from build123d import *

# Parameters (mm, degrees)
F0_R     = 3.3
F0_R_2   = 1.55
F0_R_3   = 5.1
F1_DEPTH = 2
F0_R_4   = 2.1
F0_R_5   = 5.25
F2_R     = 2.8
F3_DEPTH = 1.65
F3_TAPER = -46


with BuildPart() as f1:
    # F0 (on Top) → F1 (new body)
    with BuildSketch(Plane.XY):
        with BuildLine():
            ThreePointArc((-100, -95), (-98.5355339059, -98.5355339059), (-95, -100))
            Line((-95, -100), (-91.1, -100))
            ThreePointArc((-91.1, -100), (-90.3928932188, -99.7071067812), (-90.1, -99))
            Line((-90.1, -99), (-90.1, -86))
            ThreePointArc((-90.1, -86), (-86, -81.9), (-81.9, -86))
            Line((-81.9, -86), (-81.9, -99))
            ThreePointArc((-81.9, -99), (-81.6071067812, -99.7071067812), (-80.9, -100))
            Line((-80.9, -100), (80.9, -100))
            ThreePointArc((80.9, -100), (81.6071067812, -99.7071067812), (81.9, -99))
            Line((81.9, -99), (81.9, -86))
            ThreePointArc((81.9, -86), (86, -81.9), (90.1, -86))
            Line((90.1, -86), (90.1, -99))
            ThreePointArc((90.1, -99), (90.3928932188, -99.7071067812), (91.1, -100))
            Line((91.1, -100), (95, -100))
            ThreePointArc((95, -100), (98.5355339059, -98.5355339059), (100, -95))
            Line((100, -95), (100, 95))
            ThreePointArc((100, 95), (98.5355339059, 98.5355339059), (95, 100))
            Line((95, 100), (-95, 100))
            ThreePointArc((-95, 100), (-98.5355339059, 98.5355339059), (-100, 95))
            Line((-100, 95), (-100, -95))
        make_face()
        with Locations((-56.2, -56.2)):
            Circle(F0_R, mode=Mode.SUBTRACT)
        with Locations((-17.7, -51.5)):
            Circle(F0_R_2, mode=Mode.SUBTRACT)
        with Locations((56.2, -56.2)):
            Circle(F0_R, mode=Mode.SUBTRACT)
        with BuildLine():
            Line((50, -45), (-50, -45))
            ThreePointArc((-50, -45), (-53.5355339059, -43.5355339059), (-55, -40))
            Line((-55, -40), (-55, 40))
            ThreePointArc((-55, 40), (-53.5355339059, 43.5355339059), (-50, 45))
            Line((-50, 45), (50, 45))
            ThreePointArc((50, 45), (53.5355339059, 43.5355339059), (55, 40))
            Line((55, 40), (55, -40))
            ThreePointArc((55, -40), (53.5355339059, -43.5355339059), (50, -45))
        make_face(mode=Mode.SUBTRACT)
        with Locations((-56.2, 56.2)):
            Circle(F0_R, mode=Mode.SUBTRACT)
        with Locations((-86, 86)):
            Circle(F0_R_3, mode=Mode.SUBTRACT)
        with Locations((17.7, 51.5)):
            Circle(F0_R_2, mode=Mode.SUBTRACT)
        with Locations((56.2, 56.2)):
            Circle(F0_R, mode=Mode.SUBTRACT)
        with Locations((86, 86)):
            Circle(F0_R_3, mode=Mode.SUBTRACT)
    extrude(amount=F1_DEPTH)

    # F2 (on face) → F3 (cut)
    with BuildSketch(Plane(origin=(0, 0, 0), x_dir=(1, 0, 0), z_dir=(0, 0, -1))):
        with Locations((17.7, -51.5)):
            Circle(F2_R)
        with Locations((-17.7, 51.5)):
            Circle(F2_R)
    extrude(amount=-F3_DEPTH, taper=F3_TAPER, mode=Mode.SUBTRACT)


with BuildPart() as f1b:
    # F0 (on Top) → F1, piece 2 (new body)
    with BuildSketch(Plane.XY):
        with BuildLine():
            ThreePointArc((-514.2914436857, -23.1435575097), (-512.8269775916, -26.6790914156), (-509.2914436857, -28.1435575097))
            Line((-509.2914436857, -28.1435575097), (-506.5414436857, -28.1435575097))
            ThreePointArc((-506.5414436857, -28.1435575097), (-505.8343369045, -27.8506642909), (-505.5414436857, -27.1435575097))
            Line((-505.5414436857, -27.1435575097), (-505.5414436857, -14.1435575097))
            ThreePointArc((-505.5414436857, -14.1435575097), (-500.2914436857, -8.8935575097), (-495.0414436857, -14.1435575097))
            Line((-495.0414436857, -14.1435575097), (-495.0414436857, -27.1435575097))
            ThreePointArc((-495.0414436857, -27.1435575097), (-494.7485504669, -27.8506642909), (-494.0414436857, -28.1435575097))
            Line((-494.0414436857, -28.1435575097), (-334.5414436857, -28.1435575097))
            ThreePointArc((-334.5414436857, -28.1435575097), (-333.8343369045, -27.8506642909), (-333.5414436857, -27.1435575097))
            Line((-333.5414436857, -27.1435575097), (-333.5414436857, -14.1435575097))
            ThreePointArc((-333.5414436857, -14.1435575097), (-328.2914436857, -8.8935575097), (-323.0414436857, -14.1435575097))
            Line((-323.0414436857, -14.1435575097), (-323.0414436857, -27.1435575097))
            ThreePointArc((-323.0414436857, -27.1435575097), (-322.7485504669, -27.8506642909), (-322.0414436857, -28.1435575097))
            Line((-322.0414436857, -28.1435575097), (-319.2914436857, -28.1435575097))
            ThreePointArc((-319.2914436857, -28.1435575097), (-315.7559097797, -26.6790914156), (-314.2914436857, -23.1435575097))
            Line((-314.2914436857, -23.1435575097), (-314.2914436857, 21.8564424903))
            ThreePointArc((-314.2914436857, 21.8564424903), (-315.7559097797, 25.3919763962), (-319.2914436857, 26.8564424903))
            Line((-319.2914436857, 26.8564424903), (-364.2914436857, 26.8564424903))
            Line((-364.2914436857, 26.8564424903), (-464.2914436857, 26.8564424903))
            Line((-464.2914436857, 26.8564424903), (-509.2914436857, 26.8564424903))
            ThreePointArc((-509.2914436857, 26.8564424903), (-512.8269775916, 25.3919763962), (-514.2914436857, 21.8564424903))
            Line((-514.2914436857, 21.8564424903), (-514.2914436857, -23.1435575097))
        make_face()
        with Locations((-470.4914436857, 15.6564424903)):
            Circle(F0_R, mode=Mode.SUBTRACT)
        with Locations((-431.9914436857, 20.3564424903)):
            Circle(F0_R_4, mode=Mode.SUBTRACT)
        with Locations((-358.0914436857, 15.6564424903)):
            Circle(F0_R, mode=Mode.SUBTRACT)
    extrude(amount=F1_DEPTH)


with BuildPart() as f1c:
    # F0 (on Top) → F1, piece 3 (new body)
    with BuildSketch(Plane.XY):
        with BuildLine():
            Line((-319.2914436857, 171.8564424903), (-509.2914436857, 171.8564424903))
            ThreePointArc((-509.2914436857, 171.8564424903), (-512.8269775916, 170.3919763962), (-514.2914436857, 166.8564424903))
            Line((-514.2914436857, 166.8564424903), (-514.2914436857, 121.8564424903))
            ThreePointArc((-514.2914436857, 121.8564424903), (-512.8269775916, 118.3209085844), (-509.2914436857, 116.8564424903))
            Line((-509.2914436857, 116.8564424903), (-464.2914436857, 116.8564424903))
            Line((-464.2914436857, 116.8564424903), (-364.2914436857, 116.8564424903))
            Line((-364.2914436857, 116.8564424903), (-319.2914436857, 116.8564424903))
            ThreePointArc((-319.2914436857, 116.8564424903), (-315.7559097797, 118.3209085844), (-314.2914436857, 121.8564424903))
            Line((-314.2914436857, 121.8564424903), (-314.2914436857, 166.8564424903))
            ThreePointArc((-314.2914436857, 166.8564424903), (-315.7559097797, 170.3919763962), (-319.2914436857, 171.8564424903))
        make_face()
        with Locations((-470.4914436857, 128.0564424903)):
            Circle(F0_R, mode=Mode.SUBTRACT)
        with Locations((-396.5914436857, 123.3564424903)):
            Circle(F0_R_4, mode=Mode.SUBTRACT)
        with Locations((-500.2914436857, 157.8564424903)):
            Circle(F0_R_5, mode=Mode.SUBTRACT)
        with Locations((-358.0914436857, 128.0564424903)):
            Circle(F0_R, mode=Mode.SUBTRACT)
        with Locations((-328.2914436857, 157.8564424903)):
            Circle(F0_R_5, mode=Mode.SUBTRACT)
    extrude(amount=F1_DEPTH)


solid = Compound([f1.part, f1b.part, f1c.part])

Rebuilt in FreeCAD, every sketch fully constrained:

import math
import FreeCAD as App
import Part
import Sketcher
Q = App.Units.Quantity

doc = App.newDocument("Part")
body = doc.addObject("PartDesign::Body", "Body")

# Sketch on XY plane
sketch1 = doc.addObject("Sketcher::SketchObject", "Sketch")
body.addObject(sketch1)
sketch1.AttachmentSupport = (doc.XY_Plane, [""])
sketch1.MapMode = "FlatFace"
sketch1.addGeometry(Part.ArcOfCircle(Part.Circle(App.Vector(-95, -95, 0), App.Vector(0, 0, 1), 5), math.radians(180), math.radians(270)), False)
sketch1.addGeometry(Part.LineSegment(App.Vector(-95, -100, 0), App.Vector(-91.1, -100, 0)), False)
sketch1.addGeometry(Part.ArcOfCircle(Part.Circle(App.Vector(-91.1, -99, 0), App.Vector(0, 0, 1), 1), math.radians(-90), math.radians(0)), False)
sketch1.addGeometry(Part.LineSegment(App.Vector(-90.1, -99, 0), App.Vector(-90.1, -86, 0)), False)
sketch1.addGeometry(Part.ArcOfCircle(Part.Circle(App.Vector(-86, -86, 0), App.Vector(0, 0, 1), 4.1), math.radians(0), math.radians(180)), False)
sketch1.addGeometry(Part.LineSegment(App.Vector(-81.9, -86, 0), App.Vector(-81.9, -99, 0)), False)
sketch1.addGeometry(Part.ArcOfCircle(Part.Circle(App.Vector(-80.9, -99, 0), App.Vector(0, 0, 1), 1), math.radians(180), math.radians(270)), False)
sketch1.addGeometry(Part.LineSegment(App.Vector(-80.9, -100, 0), App.Vector(80.9, -100, 0)), False)
sketch1.addGeometry(Part.ArcOfCircle(Part.Circle(App.Vector(80.9, -99, 0), App.Vector(0, 0, 1), 1), math.radians(-90), math.radians(0)), False)
sketch1.addGeometry(Part.LineSegment(App.Vector(81.9, -99, 0), App.Vector(81.9, -86, 0)), False)
sketch1.addGeometry(Part.ArcOfCircle(Part.Circle(App.Vector(86, -86, 0), App.Vector(0, 0, 1), 4.1), math.radians(0), math.radians(180)), False)
sketch1.addGeometry(Part.LineSegment(App.Vector(90.1, -86, 0), App.Vector(90.1, -99, 0)), False)
sketch1.addGeometry(Part.ArcOfCircle(Part.Circle(App.Vector(91.1, -99, 0), App.Vector(0, 0, 1), 1), math.radians(180), math.radians(270)), False)
sketch1.addGeometry(Part.LineSegment(App.Vector(91.1, -100, 0), App.Vector(95, -100, 0)), False)
sketch1.addGeometry(Part.ArcOfCircle(Part.Circle(App.Vector(95, -95, 0), App.Vector(0, 0, 1), 5), math.radians(-90), math.radians(0)), False)
sketch1.addGeometry(Part.LineSegment(App.Vector(100, -95, 0), App.Vector(100, 95, 0)), False)
sketch1.addGeometry(Part.ArcOfCircle(Part.Circle(App.Vector(95, 95, 0), App.Vector(0, 0, 1), 5), math.radians(0), math.radians(90)), False)
sketch1.addGeometry(Part.LineSegment(App.Vector(95, 100, 0), App.Vector(-95, 100, 0)), False)
sketch1.addGeometry(Part.ArcOfCircle(Part.Circle(App.Vector(-95, 95, 0), App.Vector(0, 0, 1), 5), math.radians(90), math.radians(180)), False)
sketch1.addGeometry(Part.LineSegment(App.Vector(-100, 95, 0), App.Vector(-100, -95, 0)), False)
sketch1.addGeometry(Part.Circle(App.Vector(-56.2, -56.2, 0), App.Vector(0, 0, 1), 3.3), False)
sketch1.addGeometry(Part.Circle(App.Vector(-17.7, -51.5, 0), App.Vector(0, 0, 1), 1.6), False)
sketch1.addGeometry(Part.Circle(App.Vector(56.2, -56.2, 0), App.Vector(0, 0, 1), 3.3), False)
sketch1.addGeometry(Part.ArcOfCircle(Part.Circle(App.Vector(50, -40, 0), App.Vector(0, 0, 1), 5), math.radians(-90), math.radians(0)), False)
sketch1.addGeometry(Part.LineSegment(App.Vector(50, -45, 0), App.Vector(-50, -45, 0)), False)
sketch1.addGeometry(Part.ArcOfCircle(Part.Circle(App.Vector(-50, -40, 0), App.Vector(0, 0, 1), 5), math.radians(180), math.radians(270)), False)
sketch1.addGeometry(Part.LineSegment(App.Vector(-55, -40, 0), App.Vector(-55, 40, 0)), False)
sketch1.addGeometry(Part.ArcOfCircle(Part.Circle(App.Vector(-50, 40, 0), App.Vector(0, 0, 1), 5), math.radians(90), math.radians(180)), False)
sketch1.addGeometry(Part.LineSegment(App.Vector(-50, 45, 0), App.Vector(50, 45, 0)), False)
sketch1.addGeometry(Part.ArcOfCircle(Part.Circle(App.Vector(50, 40, 0), App.Vector(0, 0, 1), 5), math.radians(0), math.radians(90)), False)
sketch1.addGeometry(Part.LineSegment(App.Vector(55, 40, 0), App.Vector(55, -40, 0)), False)
sketch1.addGeometry(Part.Circle(App.Vector(-56.2, 56.2, 0), App.Vector(0, 0, 1), 3.3), False)
sketch1.addGeometry(Part.Circle(App.Vector(-86, 86, 0), App.Vector(0, 0, 1), 5.1), False)
sketch1.addGeometry(Part.Circle(App.Vector(17.7, 51.5, 0), App.Vector(0, 0, 1), 1.6), False)
sketch1.addGeometry(Part.Circle(App.Vector(56.2, 56.2, 0), App.Vector(0, 0, 1), 3.3), False)
sketch1.addGeometry(Part.Circle(App.Vector(86, 86, 0), App.Vector(0, 0, 1), 5.1), False)
sketch1.addConstraint(Sketcher.Constraint("Tangent", 0, 2, 1, 1))
sketch1.addConstraint(Sketcher.Constraint("Tangent", 1, 2, 2, 1))
sketch1.addConstraint(Sketcher.Constraint("Tangent", 2, 2, 3, 1))
sketch1.addConstraint(Sketcher.Constraint("Tangent", 3, 2, 4, 2))
sketch1.addConstraint(Sketcher.Constraint("Tangent", 4, 1, 5, 1))
sketch1.addConstraint(Sketcher.Constraint("Tangent", 5, 2, 6, 1))
sketch1.addConstraint(Sketcher.Constraint("Tangent", 6, 2, 7, 1))
sketch1.addConstraint(Sketcher.Constraint("Tangent", 7, 2, 8, 1))
sketch1.addConstraint(Sketcher.Constraint("Tangent", 8, 2, 9, 1))
sketch1.addConstraint(Sketcher.Constraint("Tangent", 9, 2, 10, 2))
sketch1.addConstraint(Sketcher.Constraint("Tangent", 10, 1, 11, 1))
sketch1.addConstraint(Sketcher.Constraint("Tangent", 11, 2, 12, 1))
sketch1.addConstraint(Sketcher.Constraint("Tangent", 12, 2, 13, 1))
sketch1.addConstraint(Sketcher.Constraint("Tangent", 13, 2, 14, 1))
sketch1.addConstraint(Sketcher.Constraint("Tangent", 14, 2, 15, 1))
sketch1.addConstraint(Sketcher.Constraint("Tangent", 15, 2, 16, 1))
sketch1.addConstraint(Sketcher.Constraint("Tangent", 16, 2, 17, 1))
sketch1.addConstraint(Sketcher.Constraint("Tangent", 17, 2, 18, 1))
sketch1.addConstraint(Sketcher.Constraint("Tangent", 18, 2, 19, 1))
sketch1.addConstraint(Sketcher.Constraint("Tangent", 19, 2, 0, 1))
sketch1.addConstraint(Sketcher.Constraint("Tangent", 23, 1, 24, 1))
sketch1.addConstraint(Sketcher.Constraint("Tangent", 24, 2, 25, 2))
sketch1.addConstraint(Sketcher.Constraint("Tangent", 25, 1, 26, 1))
sketch1.addConstraint(Sketcher.Constraint("Tangent", 26, 2, 27, 2))
sketch1.addConstraint(Sketcher.Constraint("Tangent", 27, 1, 28, 1))
sketch1.addConstraint(Sketcher.Constraint("Tangent", 28, 2, 29, 2))
sketch1.addConstraint(Sketcher.Constraint("Tangent", 29, 1, 30, 1))
sketch1.addConstraint(Sketcher.Constraint("Tangent", 30, 2, 23, 2))
sketch1.addConstraint(Sketcher.Constraint("Horizontal", 1))
sketch1.addConstraint(Sketcher.Constraint("Vertical", 3))
sketch1.addConstraint(Sketcher.Constraint("Vertical", 5))
sketch1.addConstraint(Sketcher.Constraint("Horizontal", 7))
sketch1.addConstraint(Sketcher.Constraint("Vertical", 9))
sketch1.addConstraint(Sketcher.Constraint("Vertical", 11))
sketch1.addConstraint(Sketcher.Constraint("Horizontal", 13))
sketch1.addConstraint(Sketcher.Constraint("Vertical", 15))
sketch1.addConstraint(Sketcher.Constraint("Horizontal", 17))
sketch1.addConstraint(Sketcher.Constraint("Vertical", 19))
sketch1.addConstraint(Sketcher.Constraint("Horizontal", 24))
sketch1.addConstraint(Sketcher.Constraint("Vertical", 26))
sketch1.addConstraint(Sketcher.Constraint("Horizontal", 28))
sketch1.addConstraint(Sketcher.Constraint("Vertical", 30))
sketch1.addConstraint(Sketcher.Constraint("Equal", 2, 6))
sketch1.addConstraint(Sketcher.Constraint("Equal", 6, 8))
sketch1.addConstraint(Sketcher.Constraint("Equal", 4, 10))
sketch1.addConstraint(Sketcher.Constraint("Equal", 8, 12))
sketch1.addConstraint(Sketcher.Constraint("Equal", 0, 14))
sketch1.addConstraint(Sketcher.Constraint("Equal", 14, 16))
sketch1.addConstraint(Sketcher.Constraint("Equal", 16, 18))
sketch1.addConstraint(Sketcher.Constraint("Equal", 20, 22))
sketch1.addConstraint(Sketcher.Constraint("Equal", 18, 23))
sketch1.addConstraint(Sketcher.Constraint("Equal", 23, 25))
sketch1.addConstraint(Sketcher.Constraint("Equal", 25, 27))
sketch1.addConstraint(Sketcher.Constraint("Equal", 27, 29))
sketch1.addConstraint(Sketcher.Constraint("Equal", 22, 31))
sketch1.addConstraint(Sketcher.Constraint("Equal", 21, 33))
sketch1.addConstraint(Sketcher.Constraint("Equal", 31, 34))
sketch1.addConstraint(Sketcher.Constraint("Equal", 32, 35))
sketch1.addConstraint(Sketcher.Constraint("Symmetric", 0, 3, 16, 3, -1, 1))
sketch1.addConstraint(Sketcher.Constraint("Symmetric", 23, 3, 27, 3, -1, 1))
sketch1.addConstraint(Sketcher.Constraint("Symmetric", 22, 3, 31, 3, -1, 1))
sketch1.addConstraint(Sketcher.Constraint("Symmetric", 10, 3, 32, 3, -1, 1))
sketch1.addConstraint(Sketcher.Constraint("Symmetric", 21, 3, 33, 3, -1, 1))
sketch1.addConstraint(Sketcher.Constraint("Symmetric", 20, 3, 34, 3, -1, 1))
sketch1.addConstraint(Sketcher.Constraint("Symmetric", 4, 3, 35, 3, -1, 1))
sketch1.addConstraint(Sketcher.Constraint("Symmetric", 4, 3, 10, 3, -2))
sketch1.addConstraint(Sketcher.Constraint("Symmetric", 20, 3, 22, 3, -2))
sketch1.addConstraint(Sketcher.Constraint("Horizontal", 2, 3, 6, 3))
sketch1.addConstraint(Sketcher.Constraint("Horizontal", 8, 3, 12, 3))
sketch1.addConstraint(Sketcher.Constraint("Equal", 17, 15))
sketch1.addConstraint(Sketcher.Constraint("Radius", 0, Q("5 mm")))
sketch1.addConstraint(Sketcher.Constraint("Radius", 2, Q("1 mm")))
sketch1.addConstraint(Sketcher.Constraint("Diameter", 20, Q("6.6 mm")))
sketch1.addConstraint(Sketcher.Constraint("Diameter", 21, Q("3.1 mm")))
sketch1.addConstraint(Sketcher.Constraint("Diameter", 32, Q("10.2 mm")))
sketch1.addConstraint(Sketcher.Constraint("Radius", 4, Q("4.1 mm")))
sketch1.addConstraint(Sketcher.Constraint("DistanceX", 17, 2, 17, 1, Q("190 mm")))
sketch1.addConstraint(Sketcher.Constraint("DistanceX", 24, 2, 24, 1, Q("100 mm")))
sketch1.addConstraint(Sketcher.Constraint("DistanceY", 3, 1, 3, 2, Q("13 mm")))
sketch1.addConstraint(Sketcher.Constraint("DistanceY", 26, 1, 26, 2, Q("80 mm")))
sketch1.addConstraint(Sketcher.Constraint("DistanceX", 1, 1, 1, 2, Q("3.9 mm")))
sketch1.addConstraint(Sketcher.Constraint("DistanceX", 20, 3, -1, 1, Q("56.2 mm")))
sketch1.addConstraint(Sketcher.Constraint("DistanceY", 20, 3, -1, 1, Q("56.2 mm")))
sketch1.addConstraint(Sketcher.Constraint("DistanceX", 21, 3, -1, 1, Q("17.7 mm")))
sketch1.addConstraint(Sketcher.Constraint("DistanceY", 21, 3, -1, 1, Q("51.5 mm")))
pad1 = doc.addObject("PartDesign::Pad", "Pad")
body.addObject(pad1)
pad1.Profile = sketch1
pad1.Length = 2

# Sketch on XY plane
sketch2 = doc.addObject("Sketcher::SketchObject", "Sketch001")
body.addObject(sketch2)
sketch2.AttachmentSupport = (doc.XY_Plane, [""])
sketch2.MapMode = "FlatFace"
sketch2.addGeometry(Part.Circle(App.Vector(17.7, 51.5, 0), App.Vector(0, 0, 1), 2.8), False)
sketch2.addGeometry(Part.Circle(App.Vector(-17.7, -51.5, 0), App.Vector(0, 0, 1), 2.8), False)
sketch2.addConstraint(Sketcher.Constraint("Equal", 0, 1))
sketch2.addConstraint(Sketcher.Constraint("Symmetric", 0, 3, 1, 3, -1, 1))
sketch2.addConstraint(Sketcher.Constraint("Diameter", 0, Q("5.6 mm")))
sketch2.addConstraint(Sketcher.Constraint("DistanceY", 1, 3, 0, 3, Q("103 mm")))
sketch2.addConstraint(Sketcher.Constraint("DistanceX", -1, 1, 0, 3, Q("17.7 mm")))
pocket1 = doc.addObject("PartDesign::Pocket", "Pocket")
body.addObject(pocket1)
pocket1.Profile = sketch2
pocket1.Length = 1.65
pocket1.Reversed = True
pocket1.TaperAngle = 46
body2 = doc.addObject("PartDesign::Body", "Body001")

# Sketch on XY plane
sketch3 = doc.addObject("Sketcher::SketchObject", "Sketch002")
body2.addObject(sketch3)
sketch3.AttachmentSupport = (doc.getObject("XY_Plane001"), [""])
sketch3.MapMode = "FlatFace"
sketch3.addGeometry(Part.ArcOfCircle(Part.Circle(App.Vector(-509.3, -23.1, 0), App.Vector(0, 0, 1), 5), math.radians(180), math.radians(270)), False)
sketch3.addGeometry(Part.LineSegment(App.Vector(-509.3, -28.1, 0), App.Vector(-506.5, -28.1, 0)), False)
sketch3.addGeometry(Part.ArcOfCircle(Part.Circle(App.Vector(-506.5, -27.1, 0), App.Vector(0, 0, 1), 1), math.radians(-90), math.radians(0)), False)
sketch3.addGeometry(Part.LineSegment(App.Vector(-505.5, -27.1, 0), App.Vector(-505.5, -14.1, 0)), False)
sketch3.addGeometry(Part.ArcOfCircle(Part.Circle(App.Vector(-500.3, -14.1, 0), App.Vector(0, 0, 1), 5.2), math.radians(0), math.radians(180)), False)
sketch3.addGeometry(Part.LineSegment(App.Vector(-495, -14.1, 0), App.Vector(-495, -27.1, 0)), False)
sketch3.addGeometry(Part.ArcOfCircle(Part.Circle(App.Vector(-494, -27.1, 0), App.Vector(0, 0, 1), 1), math.radians(180), math.radians(270)), False)
sketch3.addGeometry(Part.LineSegment(App.Vector(-494, -28.1, 0), App.Vector(-334.5, -28.1, 0)), False)
sketch3.addGeometry(Part.ArcOfCircle(Part.Circle(App.Vector(-334.5, -27.1, 0), App.Vector(0, 0, 1), 1), math.radians(-90), math.radians(0)), False)
sketch3.addGeometry(Part.LineSegment(App.Vector(-333.5, -27.1, 0), App.Vector(-333.5, -14.1, 0)), False)
sketch3.addGeometry(Part.ArcOfCircle(Part.Circle(App.Vector(-328.3, -14.1, 0), App.Vector(0, 0, 1), 5.2), math.radians(0), math.radians(180)), False)
sketch3.addGeometry(Part.LineSegment(App.Vector(-323, -14.1, 0), App.Vector(-323, -27.1, 0)), False)
sketch3.addGeometry(Part.ArcOfCircle(Part.Circle(App.Vector(-322, -27.1, 0), App.Vector(0, 0, 1), 1), math.radians(180), math.radians(270)), False)
sketch3.addGeometry(Part.LineSegment(App.Vector(-322, -28.1, 0), App.Vector(-319.3, -28.1, 0)), False)
sketch3.addGeometry(Part.ArcOfCircle(Part.Circle(App.Vector(-319.3, -23.1, 0), App.Vector(0, 0, 1), 5), math.radians(-90), math.radians(0)), False)
sketch3.addGeometry(Part.LineSegment(App.Vector(-314.3, -23.1, 0), App.Vector(-314.3, 21.9, 0)), False)
sketch3.addGeometry(Part.ArcOfCircle(Part.Circle(App.Vector(-319.3, 21.9, 0), App.Vector(0, 0, 1), 5), math.radians(0), math.radians(90)), False)
sketch3.addGeometry(Part.LineSegment(App.Vector(-319.3, 26.9, 0), App.Vector(-509.3, 26.9, 0)), False)
sketch3.addGeometry(Part.ArcOfCircle(Part.Circle(App.Vector(-509.3, 21.9, 0), App.Vector(0, 0, 1), 5), math.radians(90), math.radians(180)), False)
sketch3.addGeometry(Part.LineSegment(App.Vector(-514.3, 21.9, 0), App.Vector(-514.3, -23.1, 0)), False)
sketch3.addGeometry(Part.Circle(App.Vector(-470.5, 15.7, 0), App.Vector(0, 0, 1), 3.3), False)
sketch3.addGeometry(Part.Circle(App.Vector(-358.1, 15.7, 0), App.Vector(0, 0, 1), 3.3), False)
sketch3.addGeometry(Part.Circle(App.Vector(-432, 20.4, 0), App.Vector(0, 0, 1), 2.1), False)
sketch3.addConstraint(Sketcher.Constraint("Tangent", 0, 2, 1, 1))
sketch3.addConstraint(Sketcher.Constraint("Tangent", 1, 2, 2, 1))
sketch3.addConstraint(Sketcher.Constraint("Tangent", 2, 2, 3, 1))
sketch3.addConstraint(Sketcher.Constraint("Tangent", 3, 2, 4, 2))
sketch3.addConstraint(Sketcher.Constraint("Tangent", 4, 1, 5, 1))
sketch3.addConstraint(Sketcher.Constraint("Tangent", 5, 2, 6, 1))
sketch3.addConstraint(Sketcher.Constraint("Tangent", 6, 2, 7, 1))
sketch3.addConstraint(Sketcher.Constraint("Tangent", 7, 2, 8, 1))
sketch3.addConstraint(Sketcher.Constraint("Tangent", 8, 2, 9, 1))
sketch3.addConstraint(Sketcher.Constraint("Tangent", 9, 2, 10, 2))
sketch3.addConstraint(Sketcher.Constraint("Tangent", 10, 1, 11, 1))
sketch3.addConstraint(Sketcher.Constraint("Tangent", 11, 2, 12, 1))
sketch3.addConstraint(Sketcher.Constraint("Tangent", 12, 2, 13, 1))
sketch3.addConstraint(Sketcher.Constraint("Tangent", 13, 2, 14, 1))
sketch3.addConstraint(Sketcher.Constraint("Tangent", 14, 2, 15, 1))
sketch3.addConstraint(Sketcher.Constraint("Tangent", 15, 2, 16, 1))
sketch3.addConstraint(Sketcher.Constraint("Tangent", 16, 2, 17, 1))
sketch3.addConstraint(Sketcher.Constraint("Tangent", 17, 2, 18, 1))
sketch3.addConstraint(Sketcher.Constraint("Tangent", 18, 2, 19, 1))
sketch3.addConstraint(Sketcher.Constraint("Tangent", 19, 2, 0, 1))
sketch3.addConstraint(Sketcher.Constraint("Horizontal", 1))
sketch3.addConstraint(Sketcher.Constraint("Vertical", 3))
sketch3.addConstraint(Sketcher.Constraint("Vertical", 5))
sketch3.addConstraint(Sketcher.Constraint("Horizontal", 7))
sketch3.addConstraint(Sketcher.Constraint("Vertical", 9))
sketch3.addConstraint(Sketcher.Constraint("Vertical", 11))
sketch3.addConstraint(Sketcher.Constraint("Horizontal", 13))
sketch3.addConstraint(Sketcher.Constraint("Vertical", 15))
sketch3.addConstraint(Sketcher.Constraint("Horizontal", 17))
sketch3.addConstraint(Sketcher.Constraint("Vertical", 19))
sketch3.addConstraint(Sketcher.Constraint("Equal", 2, 6))
sketch3.addConstraint(Sketcher.Constraint("Equal", 6, 8))
sketch3.addConstraint(Sketcher.Constraint("Equal", 4, 10))
sketch3.addConstraint(Sketcher.Constraint("Equal", 8, 12))
sketch3.addConstraint(Sketcher.Constraint("Equal", 0, 14))
sketch3.addConstraint(Sketcher.Constraint("Equal", 14, 16))
sketch3.addConstraint(Sketcher.Constraint("Equal", 16, 18))
sketch3.addConstraint(Sketcher.Constraint("Equal", 20, 21))
sketch3.addConstraint(Sketcher.Constraint("Horizontal", 2, 3, 6, 3))
sketch3.addConstraint(Sketcher.Constraint("Horizontal", 4, 3, 10, 3))
sketch3.addConstraint(Sketcher.Constraint("Horizontal", 8, 3, 12, 3))
sketch3.addConstraint(Sketcher.Constraint("Horizontal", 20, 3, 21, 3))
sketch3.addConstraint(Sketcher.Constraint("Equal", 1, 13))
sketch3.addConstraint(Sketcher.Constraint("Radius", 0, Q("5 mm")))
sketch3.addConstraint(Sketcher.Constraint("Radius", 2, Q("1 mm")))
sketch3.addConstraint(Sketcher.Constraint("Diameter", 20, Q("6.6 mm")))
sketch3.addConstraint(Sketcher.Constraint("Diameter", 22, Q("4.2 mm")))
sketch3.addConstraint(Sketcher.Constraint("DistanceX", 17, 2, 17, 1, Q("190 mm")))
sketch3.addConstraint(Sketcher.Constraint("DistanceY", 3, 1, 3, 2, Q("13 mm")))
sketch3.addConstraint(Sketcher.Constraint("DistanceY", 15, 1, 15, 2, Q("45 mm")))
sketch3.addConstraint(Sketcher.Constraint("Radius", 4, Q("5.25 mm")))
sketch3.addConstraint(Sketcher.Constraint("DistanceX", 7, 1, 7, 2, Q("159.5 mm")))
sketch3.addConstraint(Sketcher.Constraint("DistanceX", 18, 3, 20, 3, Q("38.8 mm")))
sketch3.addConstraint(Sketcher.Constraint("DistanceY", 20, 3, 18, 3, Q("6.2 mm")))
sketch3.addConstraint(Sketcher.Constraint("DistanceX", 21, 3, 16, 3, Q("38.8 mm")))
sketch3.addConstraint(Sketcher.Constraint("DistanceX", 20, 3, 22, 3, Q("38.5 mm")))
sketch3.addConstraint(Sketcher.Constraint("DistanceY", 20, 3, 22, 3, Q("4.7 mm")))
sketch3.addConstraint(Sketcher.Constraint("DistanceX", 0, 3, -1, 1, Q("509.291444 mm")))
sketch3.addConstraint(Sketcher.Constraint("DistanceY", 0, 3, -1, 1, Q("23.143558 mm")))
pad2 = doc.addObject("PartDesign::Pad", "Pad001")
body2.addObject(pad2)
pad2.Profile = sketch3
pad2.Length = 2
body3 = doc.addObject("PartDesign::Body", "Body002")

# Sketch on XY plane
sketch4 = doc.addObject("Sketcher::SketchObject", "Sketch003")
body3.addObject(sketch4)
sketch4.AttachmentSupport = (doc.getObject("XY_Plane002"), [""])
sketch4.MapMode = "FlatFace"
sketch4.addGeometry(Part.LineSegment(App.Vector(-319.3, 171.9, 0), App.Vector(-509.3, 171.9, 0)), False)
sketch4.addGeometry(Part.ArcOfCircle(Part.Circle(App.Vector(-509.3, 166.9, 0), App.Vector(0, 0, 1), 5), math.radians(90), math.radians(180)), False)
sketch4.addGeometry(Part.LineSegment(App.Vector(-514.3, 166.9, 0), App.Vector(-514.3, 121.9, 0)), False)
sketch4.addGeometry(Part.ArcOfCircle(Part.Circle(App.Vector(-509.3, 121.9, 0), App.Vector(0, 0, 1), 5), math.radians(180), math.radians(270)), False)
sketch4.addGeometry(Part.LineSegment(App.Vector(-509.3, 116.9, 0), App.Vector(-319.3, 116.9, 0)), False)
sketch4.addGeometry(Part.ArcOfCircle(Part.Circle(App.Vector(-319.3, 121.9, 0), App.Vector(0, 0, 1), 5), math.radians(-90), math.radians(0)), False)
sketch4.addGeometry(Part.LineSegment(App.Vector(-314.3, 121.9, 0), App.Vector(-314.3, 166.9, 0)), False)
sketch4.addGeometry(Part.ArcOfCircle(Part.Circle(App.Vector(-319.3, 166.9, 0), App.Vector(0, 0, 1), 5), math.radians(0), math.radians(90)), False)
sketch4.addGeometry(Part.Circle(App.Vector(-470.5, 128.1, 0), App.Vector(0, 0, 1), 3.3), False)
sketch4.addGeometry(Part.Circle(App.Vector(-396.6, 123.4, 0), App.Vector(0, 0, 1), 2.1), False)
sketch4.addGeometry(Part.Circle(App.Vector(-358.1, 128.1, 0), App.Vector(0, 0, 1), 3.3), False)
sketch4.addGeometry(Part.Circle(App.Vector(-500.3, 157.9, 0), App.Vector(0, 0, 1), 5.2), False)
sketch4.addGeometry(Part.Circle(App.Vector(-328.3, 157.9, 0), App.Vector(0, 0, 1), 5.2), False)
sketch4.addConstraint(Sketcher.Constraint("Tangent", 0, 2, 1, 1))
sketch4.addConstraint(Sketcher.Constraint("Tangent", 1, 2, 2, 1))
sketch4.addConstraint(Sketcher.Constraint("Tangent", 2, 2, 3, 1))
sketch4.addConstraint(Sketcher.Constraint("Tangent", 3, 2, 4, 1))
sketch4.addConstraint(Sketcher.Constraint("Tangent", 4, 2, 5, 1))
sketch4.addConstraint(Sketcher.Constraint("Tangent", 5, 2, 6, 1))
sketch4.addConstraint(Sketcher.Constraint("Tangent", 6, 2, 7, 1))
sketch4.addConstraint(Sketcher.Constraint("Tangent", 7, 2, 0, 1))
sketch4.addConstraint(Sketcher.Constraint("Horizontal", 0))
sketch4.addConstraint(Sketcher.Constraint("Vertical", 2))
sketch4.addConstraint(Sketcher.Constraint("Horizontal", 4))
sketch4.addConstraint(Sketcher.Constraint("Vertical", 6))
sketch4.addConstraint(Sketcher.Constraint("Equal", 1, 3))
sketch4.addConstraint(Sketcher.Constraint("Equal", 3, 5))
sketch4.addConstraint(Sketcher.Constraint("Equal", 5, 7))
sketch4.addConstraint(Sketcher.Constraint("Equal", 8, 10))
sketch4.addConstraint(Sketcher.Constraint("Equal", 11, 12))
sketch4.addConstraint(Sketcher.Constraint("Horizontal", 8, 3, 10, 3))
sketch4.addConstraint(Sketcher.Constraint("Horizontal", 11, 3, 12, 3))
sketch4.addConstraint(Sketcher.Constraint("Radius", 1, Q("5 mm")))
sketch4.addConstraint(Sketcher.Constraint("Diameter", 8, Q("6.6 mm")))
sketch4.addConstraint(Sketcher.Constraint("Diameter", 9, Q("4.2 mm")))
sketch4.addConstraint(Sketcher.Constraint("Diameter", 11, Q("10.5 mm")))
sketch4.addConstraint(Sketcher.Constraint("DistanceX", 0, 2, 0, 1, Q("190 mm")))
sketch4.addConstraint(Sketcher.Constraint("DistanceY", 2, 2, 2, 1, Q("45 mm")))
sketch4.addConstraint(Sketcher.Constraint("DistanceX", 1, 3, 11, 3, Q("9 mm")))
sketch4.addConstraint(Sketcher.Constraint("DistanceY", 11, 3, 1, 3, Q("9 mm")))
sketch4.addConstraint(Sketcher.Constraint("DistanceX", 12, 3, 7, 3, Q("9 mm")))
sketch4.addConstraint(Sketcher.Constraint("DistanceX", 3, 3, 8, 3, Q("38.8 mm")))
sketch4.addConstraint(Sketcher.Constraint("DistanceY", 3, 3, 8, 3, Q("6.2 mm")))
sketch4.addConstraint(Sketcher.Constraint("DistanceX", 8, 3, 9, 3, Q("73.9 mm")))
sketch4.addConstraint(Sketcher.Constraint("DistanceY", 9, 3, 8, 3, Q("4.7 mm")))
sketch4.addConstraint(Sketcher.Constraint("DistanceX", 9, 3, 10, 3, Q("38.5 mm")))
sketch4.addConstraint(Sketcher.Constraint("DistanceX", 1, 3, -1, 1, Q("509.291444 mm")))
sketch4.addConstraint(Sketcher.Constraint("DistanceY", -1, 1, 1, 3, Q("166.856442 mm")))
pad3 = doc.addObject("PartDesign::Pad", "Pad002")
body3.addObject(pad3)
pad3.Profile = sketch4
pad3.Length = 2

doc.recompute()
